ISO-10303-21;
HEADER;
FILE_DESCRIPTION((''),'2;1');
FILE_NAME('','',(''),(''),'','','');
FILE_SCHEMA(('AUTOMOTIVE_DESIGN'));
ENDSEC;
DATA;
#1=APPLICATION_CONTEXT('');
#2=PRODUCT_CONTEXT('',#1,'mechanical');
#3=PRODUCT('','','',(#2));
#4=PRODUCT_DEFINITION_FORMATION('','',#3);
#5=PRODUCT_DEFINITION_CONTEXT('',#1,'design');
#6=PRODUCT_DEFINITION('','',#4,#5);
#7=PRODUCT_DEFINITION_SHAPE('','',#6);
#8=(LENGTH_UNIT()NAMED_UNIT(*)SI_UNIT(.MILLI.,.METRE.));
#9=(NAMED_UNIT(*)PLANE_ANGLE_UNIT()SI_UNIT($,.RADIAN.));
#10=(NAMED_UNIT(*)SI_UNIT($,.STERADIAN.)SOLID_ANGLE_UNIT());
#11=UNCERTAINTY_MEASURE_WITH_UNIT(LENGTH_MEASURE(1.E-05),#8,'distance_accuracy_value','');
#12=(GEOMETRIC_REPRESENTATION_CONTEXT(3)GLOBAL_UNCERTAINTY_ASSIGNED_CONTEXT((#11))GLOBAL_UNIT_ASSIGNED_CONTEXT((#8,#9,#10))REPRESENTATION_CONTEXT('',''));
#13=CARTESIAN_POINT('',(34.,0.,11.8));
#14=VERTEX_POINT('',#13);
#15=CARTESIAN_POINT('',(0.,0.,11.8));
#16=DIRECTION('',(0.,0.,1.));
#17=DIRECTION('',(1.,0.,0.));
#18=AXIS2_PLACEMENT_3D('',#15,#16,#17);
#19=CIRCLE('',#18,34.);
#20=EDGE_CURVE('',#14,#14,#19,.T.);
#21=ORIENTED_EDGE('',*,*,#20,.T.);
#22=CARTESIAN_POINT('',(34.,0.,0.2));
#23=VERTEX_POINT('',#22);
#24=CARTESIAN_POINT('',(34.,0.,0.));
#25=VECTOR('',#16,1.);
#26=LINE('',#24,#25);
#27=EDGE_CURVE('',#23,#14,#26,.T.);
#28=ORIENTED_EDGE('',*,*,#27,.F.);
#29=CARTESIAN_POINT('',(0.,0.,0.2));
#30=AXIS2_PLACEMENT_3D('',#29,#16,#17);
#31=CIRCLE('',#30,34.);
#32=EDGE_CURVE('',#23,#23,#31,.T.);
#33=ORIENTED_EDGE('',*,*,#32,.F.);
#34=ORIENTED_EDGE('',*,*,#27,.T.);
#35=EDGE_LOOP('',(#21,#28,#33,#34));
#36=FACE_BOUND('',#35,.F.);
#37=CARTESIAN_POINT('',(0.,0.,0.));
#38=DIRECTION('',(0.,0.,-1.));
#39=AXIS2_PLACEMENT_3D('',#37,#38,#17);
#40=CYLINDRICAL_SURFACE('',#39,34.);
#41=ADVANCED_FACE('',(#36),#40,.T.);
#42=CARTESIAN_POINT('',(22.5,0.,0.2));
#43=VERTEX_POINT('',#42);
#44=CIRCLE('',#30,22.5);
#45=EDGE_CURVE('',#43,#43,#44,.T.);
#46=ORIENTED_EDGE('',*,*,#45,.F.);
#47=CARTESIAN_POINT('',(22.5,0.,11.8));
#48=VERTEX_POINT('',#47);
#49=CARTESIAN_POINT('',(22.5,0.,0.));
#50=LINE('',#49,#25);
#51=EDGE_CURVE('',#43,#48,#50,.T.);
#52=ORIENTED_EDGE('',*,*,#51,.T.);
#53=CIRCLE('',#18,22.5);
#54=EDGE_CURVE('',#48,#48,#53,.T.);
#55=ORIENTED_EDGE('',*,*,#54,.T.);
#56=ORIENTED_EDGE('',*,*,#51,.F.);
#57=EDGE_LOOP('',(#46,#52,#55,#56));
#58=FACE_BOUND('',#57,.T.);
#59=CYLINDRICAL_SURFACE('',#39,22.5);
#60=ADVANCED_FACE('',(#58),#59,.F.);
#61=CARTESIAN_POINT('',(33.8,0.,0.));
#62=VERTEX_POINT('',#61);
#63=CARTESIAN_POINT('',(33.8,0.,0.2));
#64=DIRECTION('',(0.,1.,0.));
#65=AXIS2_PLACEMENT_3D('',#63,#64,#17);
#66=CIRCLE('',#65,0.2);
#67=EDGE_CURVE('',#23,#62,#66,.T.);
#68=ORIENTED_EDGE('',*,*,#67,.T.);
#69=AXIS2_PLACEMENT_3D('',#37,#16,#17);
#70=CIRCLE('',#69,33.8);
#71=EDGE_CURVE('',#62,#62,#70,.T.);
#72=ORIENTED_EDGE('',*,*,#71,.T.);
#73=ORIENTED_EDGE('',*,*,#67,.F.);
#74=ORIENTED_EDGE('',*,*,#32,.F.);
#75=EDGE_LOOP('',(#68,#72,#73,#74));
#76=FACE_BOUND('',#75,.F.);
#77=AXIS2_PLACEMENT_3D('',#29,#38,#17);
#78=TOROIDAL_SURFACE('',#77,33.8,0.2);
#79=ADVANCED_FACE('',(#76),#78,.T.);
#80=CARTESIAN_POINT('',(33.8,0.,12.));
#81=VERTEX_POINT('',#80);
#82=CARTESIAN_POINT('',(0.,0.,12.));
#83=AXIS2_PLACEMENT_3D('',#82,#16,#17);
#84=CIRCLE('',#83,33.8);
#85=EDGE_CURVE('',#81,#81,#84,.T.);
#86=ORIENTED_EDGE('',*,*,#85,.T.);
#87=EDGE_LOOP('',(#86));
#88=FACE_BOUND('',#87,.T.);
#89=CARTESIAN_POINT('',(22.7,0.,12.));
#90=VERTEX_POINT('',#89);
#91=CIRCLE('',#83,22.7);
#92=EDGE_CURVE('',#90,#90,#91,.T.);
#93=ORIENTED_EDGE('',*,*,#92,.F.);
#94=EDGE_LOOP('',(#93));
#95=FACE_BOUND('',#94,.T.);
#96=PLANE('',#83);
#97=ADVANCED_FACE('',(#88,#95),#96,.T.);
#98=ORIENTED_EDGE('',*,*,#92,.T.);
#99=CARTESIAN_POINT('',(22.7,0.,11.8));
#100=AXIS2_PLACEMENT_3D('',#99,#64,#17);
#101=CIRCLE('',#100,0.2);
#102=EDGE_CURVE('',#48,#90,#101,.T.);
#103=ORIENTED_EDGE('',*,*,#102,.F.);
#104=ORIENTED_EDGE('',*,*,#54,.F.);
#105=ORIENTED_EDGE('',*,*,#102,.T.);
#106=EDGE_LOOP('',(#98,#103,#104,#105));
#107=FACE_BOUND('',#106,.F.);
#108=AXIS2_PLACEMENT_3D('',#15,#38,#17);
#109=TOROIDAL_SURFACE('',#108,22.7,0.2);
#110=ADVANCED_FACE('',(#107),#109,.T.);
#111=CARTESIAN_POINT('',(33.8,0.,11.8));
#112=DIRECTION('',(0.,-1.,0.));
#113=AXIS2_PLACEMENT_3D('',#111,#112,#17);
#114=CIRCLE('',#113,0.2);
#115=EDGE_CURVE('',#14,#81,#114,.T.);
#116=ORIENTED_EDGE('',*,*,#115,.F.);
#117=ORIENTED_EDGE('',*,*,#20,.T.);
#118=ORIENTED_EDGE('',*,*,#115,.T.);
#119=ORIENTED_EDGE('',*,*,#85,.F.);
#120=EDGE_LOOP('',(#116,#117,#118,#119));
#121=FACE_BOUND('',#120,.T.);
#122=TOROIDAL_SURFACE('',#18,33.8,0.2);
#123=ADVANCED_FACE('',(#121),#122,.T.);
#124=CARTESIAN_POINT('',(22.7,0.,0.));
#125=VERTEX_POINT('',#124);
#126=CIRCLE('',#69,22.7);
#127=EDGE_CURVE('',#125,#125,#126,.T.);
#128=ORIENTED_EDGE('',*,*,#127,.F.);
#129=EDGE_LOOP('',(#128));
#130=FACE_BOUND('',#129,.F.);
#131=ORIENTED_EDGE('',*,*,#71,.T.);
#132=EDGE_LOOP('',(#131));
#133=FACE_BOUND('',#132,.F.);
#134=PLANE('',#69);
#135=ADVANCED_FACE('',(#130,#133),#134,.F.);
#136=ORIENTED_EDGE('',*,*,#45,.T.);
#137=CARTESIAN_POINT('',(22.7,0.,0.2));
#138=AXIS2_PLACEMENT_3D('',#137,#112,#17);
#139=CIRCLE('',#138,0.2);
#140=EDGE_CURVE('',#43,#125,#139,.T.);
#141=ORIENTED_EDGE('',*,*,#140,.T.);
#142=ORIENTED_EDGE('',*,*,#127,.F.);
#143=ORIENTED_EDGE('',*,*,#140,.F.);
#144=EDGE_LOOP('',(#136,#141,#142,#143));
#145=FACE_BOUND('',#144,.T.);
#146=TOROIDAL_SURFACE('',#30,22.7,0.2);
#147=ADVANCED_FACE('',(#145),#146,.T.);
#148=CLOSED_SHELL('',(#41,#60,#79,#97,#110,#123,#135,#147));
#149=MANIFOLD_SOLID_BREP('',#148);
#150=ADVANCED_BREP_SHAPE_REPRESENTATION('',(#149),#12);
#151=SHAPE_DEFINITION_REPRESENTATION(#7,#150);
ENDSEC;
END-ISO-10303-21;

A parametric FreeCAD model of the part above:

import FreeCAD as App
import Part
import Sketcher
from FreeCAD import Vector


def edges_at(feature, points):
    """Names of the edges that pass closest to the given points."""
    edges = feature.Shape.Edges
    near = lambda p: min(range(len(edges)), key=lambda i: edges[i].distToShape(Part.Vertex(*p))[0])
    return sorted({f"Edge{near(p) + 1}" for p in points})

doc = App.newDocument("Part")
body = doc.addObject("PartDesign::Body", "Body")

sketch1 = body.newObject("Sketcher::SketchObject", "Sketch")
sketch1.AttachmentSupport = (doc.getObject("XY_Plane"), [""])
sketch1.MapMode = "FlatFace"
sketch1.addGeometry([
    Part.Circle(Vector(0, 0, 0), Vector(0, 0, 1), 34),
    Part.Circle(Vector(0, 0, 0), Vector(0, 0, 1), 22),
], False)
sketch1.addConstraint([
    Sketcher.Constraint("Coincident", 0, 3, -1, 1),
    Sketcher.Constraint("Coincident", 1, 3, -1, 1),
    Sketcher.Constraint("Diameter", 0, 68.0),
    Sketcher.Constraint("Diameter", 1, 45.0),
])
pad1 = body.newObject("PartDesign::Pad", "Pad")
pad1.Profile = sketch1
pad1.Length = 12
doc.recompute()

fillet = body.newObject("PartDesign::Fillet", "Fillet")
fillet.Base = (pad1, edges_at(pad1, [
    (-34, 0, 0),
    (-34, 0, 12),
    (-22.5, 0, 0),
    (-22.5, 0, 12),
]))
fillet.Radius = 0.2

doc.recompute()
